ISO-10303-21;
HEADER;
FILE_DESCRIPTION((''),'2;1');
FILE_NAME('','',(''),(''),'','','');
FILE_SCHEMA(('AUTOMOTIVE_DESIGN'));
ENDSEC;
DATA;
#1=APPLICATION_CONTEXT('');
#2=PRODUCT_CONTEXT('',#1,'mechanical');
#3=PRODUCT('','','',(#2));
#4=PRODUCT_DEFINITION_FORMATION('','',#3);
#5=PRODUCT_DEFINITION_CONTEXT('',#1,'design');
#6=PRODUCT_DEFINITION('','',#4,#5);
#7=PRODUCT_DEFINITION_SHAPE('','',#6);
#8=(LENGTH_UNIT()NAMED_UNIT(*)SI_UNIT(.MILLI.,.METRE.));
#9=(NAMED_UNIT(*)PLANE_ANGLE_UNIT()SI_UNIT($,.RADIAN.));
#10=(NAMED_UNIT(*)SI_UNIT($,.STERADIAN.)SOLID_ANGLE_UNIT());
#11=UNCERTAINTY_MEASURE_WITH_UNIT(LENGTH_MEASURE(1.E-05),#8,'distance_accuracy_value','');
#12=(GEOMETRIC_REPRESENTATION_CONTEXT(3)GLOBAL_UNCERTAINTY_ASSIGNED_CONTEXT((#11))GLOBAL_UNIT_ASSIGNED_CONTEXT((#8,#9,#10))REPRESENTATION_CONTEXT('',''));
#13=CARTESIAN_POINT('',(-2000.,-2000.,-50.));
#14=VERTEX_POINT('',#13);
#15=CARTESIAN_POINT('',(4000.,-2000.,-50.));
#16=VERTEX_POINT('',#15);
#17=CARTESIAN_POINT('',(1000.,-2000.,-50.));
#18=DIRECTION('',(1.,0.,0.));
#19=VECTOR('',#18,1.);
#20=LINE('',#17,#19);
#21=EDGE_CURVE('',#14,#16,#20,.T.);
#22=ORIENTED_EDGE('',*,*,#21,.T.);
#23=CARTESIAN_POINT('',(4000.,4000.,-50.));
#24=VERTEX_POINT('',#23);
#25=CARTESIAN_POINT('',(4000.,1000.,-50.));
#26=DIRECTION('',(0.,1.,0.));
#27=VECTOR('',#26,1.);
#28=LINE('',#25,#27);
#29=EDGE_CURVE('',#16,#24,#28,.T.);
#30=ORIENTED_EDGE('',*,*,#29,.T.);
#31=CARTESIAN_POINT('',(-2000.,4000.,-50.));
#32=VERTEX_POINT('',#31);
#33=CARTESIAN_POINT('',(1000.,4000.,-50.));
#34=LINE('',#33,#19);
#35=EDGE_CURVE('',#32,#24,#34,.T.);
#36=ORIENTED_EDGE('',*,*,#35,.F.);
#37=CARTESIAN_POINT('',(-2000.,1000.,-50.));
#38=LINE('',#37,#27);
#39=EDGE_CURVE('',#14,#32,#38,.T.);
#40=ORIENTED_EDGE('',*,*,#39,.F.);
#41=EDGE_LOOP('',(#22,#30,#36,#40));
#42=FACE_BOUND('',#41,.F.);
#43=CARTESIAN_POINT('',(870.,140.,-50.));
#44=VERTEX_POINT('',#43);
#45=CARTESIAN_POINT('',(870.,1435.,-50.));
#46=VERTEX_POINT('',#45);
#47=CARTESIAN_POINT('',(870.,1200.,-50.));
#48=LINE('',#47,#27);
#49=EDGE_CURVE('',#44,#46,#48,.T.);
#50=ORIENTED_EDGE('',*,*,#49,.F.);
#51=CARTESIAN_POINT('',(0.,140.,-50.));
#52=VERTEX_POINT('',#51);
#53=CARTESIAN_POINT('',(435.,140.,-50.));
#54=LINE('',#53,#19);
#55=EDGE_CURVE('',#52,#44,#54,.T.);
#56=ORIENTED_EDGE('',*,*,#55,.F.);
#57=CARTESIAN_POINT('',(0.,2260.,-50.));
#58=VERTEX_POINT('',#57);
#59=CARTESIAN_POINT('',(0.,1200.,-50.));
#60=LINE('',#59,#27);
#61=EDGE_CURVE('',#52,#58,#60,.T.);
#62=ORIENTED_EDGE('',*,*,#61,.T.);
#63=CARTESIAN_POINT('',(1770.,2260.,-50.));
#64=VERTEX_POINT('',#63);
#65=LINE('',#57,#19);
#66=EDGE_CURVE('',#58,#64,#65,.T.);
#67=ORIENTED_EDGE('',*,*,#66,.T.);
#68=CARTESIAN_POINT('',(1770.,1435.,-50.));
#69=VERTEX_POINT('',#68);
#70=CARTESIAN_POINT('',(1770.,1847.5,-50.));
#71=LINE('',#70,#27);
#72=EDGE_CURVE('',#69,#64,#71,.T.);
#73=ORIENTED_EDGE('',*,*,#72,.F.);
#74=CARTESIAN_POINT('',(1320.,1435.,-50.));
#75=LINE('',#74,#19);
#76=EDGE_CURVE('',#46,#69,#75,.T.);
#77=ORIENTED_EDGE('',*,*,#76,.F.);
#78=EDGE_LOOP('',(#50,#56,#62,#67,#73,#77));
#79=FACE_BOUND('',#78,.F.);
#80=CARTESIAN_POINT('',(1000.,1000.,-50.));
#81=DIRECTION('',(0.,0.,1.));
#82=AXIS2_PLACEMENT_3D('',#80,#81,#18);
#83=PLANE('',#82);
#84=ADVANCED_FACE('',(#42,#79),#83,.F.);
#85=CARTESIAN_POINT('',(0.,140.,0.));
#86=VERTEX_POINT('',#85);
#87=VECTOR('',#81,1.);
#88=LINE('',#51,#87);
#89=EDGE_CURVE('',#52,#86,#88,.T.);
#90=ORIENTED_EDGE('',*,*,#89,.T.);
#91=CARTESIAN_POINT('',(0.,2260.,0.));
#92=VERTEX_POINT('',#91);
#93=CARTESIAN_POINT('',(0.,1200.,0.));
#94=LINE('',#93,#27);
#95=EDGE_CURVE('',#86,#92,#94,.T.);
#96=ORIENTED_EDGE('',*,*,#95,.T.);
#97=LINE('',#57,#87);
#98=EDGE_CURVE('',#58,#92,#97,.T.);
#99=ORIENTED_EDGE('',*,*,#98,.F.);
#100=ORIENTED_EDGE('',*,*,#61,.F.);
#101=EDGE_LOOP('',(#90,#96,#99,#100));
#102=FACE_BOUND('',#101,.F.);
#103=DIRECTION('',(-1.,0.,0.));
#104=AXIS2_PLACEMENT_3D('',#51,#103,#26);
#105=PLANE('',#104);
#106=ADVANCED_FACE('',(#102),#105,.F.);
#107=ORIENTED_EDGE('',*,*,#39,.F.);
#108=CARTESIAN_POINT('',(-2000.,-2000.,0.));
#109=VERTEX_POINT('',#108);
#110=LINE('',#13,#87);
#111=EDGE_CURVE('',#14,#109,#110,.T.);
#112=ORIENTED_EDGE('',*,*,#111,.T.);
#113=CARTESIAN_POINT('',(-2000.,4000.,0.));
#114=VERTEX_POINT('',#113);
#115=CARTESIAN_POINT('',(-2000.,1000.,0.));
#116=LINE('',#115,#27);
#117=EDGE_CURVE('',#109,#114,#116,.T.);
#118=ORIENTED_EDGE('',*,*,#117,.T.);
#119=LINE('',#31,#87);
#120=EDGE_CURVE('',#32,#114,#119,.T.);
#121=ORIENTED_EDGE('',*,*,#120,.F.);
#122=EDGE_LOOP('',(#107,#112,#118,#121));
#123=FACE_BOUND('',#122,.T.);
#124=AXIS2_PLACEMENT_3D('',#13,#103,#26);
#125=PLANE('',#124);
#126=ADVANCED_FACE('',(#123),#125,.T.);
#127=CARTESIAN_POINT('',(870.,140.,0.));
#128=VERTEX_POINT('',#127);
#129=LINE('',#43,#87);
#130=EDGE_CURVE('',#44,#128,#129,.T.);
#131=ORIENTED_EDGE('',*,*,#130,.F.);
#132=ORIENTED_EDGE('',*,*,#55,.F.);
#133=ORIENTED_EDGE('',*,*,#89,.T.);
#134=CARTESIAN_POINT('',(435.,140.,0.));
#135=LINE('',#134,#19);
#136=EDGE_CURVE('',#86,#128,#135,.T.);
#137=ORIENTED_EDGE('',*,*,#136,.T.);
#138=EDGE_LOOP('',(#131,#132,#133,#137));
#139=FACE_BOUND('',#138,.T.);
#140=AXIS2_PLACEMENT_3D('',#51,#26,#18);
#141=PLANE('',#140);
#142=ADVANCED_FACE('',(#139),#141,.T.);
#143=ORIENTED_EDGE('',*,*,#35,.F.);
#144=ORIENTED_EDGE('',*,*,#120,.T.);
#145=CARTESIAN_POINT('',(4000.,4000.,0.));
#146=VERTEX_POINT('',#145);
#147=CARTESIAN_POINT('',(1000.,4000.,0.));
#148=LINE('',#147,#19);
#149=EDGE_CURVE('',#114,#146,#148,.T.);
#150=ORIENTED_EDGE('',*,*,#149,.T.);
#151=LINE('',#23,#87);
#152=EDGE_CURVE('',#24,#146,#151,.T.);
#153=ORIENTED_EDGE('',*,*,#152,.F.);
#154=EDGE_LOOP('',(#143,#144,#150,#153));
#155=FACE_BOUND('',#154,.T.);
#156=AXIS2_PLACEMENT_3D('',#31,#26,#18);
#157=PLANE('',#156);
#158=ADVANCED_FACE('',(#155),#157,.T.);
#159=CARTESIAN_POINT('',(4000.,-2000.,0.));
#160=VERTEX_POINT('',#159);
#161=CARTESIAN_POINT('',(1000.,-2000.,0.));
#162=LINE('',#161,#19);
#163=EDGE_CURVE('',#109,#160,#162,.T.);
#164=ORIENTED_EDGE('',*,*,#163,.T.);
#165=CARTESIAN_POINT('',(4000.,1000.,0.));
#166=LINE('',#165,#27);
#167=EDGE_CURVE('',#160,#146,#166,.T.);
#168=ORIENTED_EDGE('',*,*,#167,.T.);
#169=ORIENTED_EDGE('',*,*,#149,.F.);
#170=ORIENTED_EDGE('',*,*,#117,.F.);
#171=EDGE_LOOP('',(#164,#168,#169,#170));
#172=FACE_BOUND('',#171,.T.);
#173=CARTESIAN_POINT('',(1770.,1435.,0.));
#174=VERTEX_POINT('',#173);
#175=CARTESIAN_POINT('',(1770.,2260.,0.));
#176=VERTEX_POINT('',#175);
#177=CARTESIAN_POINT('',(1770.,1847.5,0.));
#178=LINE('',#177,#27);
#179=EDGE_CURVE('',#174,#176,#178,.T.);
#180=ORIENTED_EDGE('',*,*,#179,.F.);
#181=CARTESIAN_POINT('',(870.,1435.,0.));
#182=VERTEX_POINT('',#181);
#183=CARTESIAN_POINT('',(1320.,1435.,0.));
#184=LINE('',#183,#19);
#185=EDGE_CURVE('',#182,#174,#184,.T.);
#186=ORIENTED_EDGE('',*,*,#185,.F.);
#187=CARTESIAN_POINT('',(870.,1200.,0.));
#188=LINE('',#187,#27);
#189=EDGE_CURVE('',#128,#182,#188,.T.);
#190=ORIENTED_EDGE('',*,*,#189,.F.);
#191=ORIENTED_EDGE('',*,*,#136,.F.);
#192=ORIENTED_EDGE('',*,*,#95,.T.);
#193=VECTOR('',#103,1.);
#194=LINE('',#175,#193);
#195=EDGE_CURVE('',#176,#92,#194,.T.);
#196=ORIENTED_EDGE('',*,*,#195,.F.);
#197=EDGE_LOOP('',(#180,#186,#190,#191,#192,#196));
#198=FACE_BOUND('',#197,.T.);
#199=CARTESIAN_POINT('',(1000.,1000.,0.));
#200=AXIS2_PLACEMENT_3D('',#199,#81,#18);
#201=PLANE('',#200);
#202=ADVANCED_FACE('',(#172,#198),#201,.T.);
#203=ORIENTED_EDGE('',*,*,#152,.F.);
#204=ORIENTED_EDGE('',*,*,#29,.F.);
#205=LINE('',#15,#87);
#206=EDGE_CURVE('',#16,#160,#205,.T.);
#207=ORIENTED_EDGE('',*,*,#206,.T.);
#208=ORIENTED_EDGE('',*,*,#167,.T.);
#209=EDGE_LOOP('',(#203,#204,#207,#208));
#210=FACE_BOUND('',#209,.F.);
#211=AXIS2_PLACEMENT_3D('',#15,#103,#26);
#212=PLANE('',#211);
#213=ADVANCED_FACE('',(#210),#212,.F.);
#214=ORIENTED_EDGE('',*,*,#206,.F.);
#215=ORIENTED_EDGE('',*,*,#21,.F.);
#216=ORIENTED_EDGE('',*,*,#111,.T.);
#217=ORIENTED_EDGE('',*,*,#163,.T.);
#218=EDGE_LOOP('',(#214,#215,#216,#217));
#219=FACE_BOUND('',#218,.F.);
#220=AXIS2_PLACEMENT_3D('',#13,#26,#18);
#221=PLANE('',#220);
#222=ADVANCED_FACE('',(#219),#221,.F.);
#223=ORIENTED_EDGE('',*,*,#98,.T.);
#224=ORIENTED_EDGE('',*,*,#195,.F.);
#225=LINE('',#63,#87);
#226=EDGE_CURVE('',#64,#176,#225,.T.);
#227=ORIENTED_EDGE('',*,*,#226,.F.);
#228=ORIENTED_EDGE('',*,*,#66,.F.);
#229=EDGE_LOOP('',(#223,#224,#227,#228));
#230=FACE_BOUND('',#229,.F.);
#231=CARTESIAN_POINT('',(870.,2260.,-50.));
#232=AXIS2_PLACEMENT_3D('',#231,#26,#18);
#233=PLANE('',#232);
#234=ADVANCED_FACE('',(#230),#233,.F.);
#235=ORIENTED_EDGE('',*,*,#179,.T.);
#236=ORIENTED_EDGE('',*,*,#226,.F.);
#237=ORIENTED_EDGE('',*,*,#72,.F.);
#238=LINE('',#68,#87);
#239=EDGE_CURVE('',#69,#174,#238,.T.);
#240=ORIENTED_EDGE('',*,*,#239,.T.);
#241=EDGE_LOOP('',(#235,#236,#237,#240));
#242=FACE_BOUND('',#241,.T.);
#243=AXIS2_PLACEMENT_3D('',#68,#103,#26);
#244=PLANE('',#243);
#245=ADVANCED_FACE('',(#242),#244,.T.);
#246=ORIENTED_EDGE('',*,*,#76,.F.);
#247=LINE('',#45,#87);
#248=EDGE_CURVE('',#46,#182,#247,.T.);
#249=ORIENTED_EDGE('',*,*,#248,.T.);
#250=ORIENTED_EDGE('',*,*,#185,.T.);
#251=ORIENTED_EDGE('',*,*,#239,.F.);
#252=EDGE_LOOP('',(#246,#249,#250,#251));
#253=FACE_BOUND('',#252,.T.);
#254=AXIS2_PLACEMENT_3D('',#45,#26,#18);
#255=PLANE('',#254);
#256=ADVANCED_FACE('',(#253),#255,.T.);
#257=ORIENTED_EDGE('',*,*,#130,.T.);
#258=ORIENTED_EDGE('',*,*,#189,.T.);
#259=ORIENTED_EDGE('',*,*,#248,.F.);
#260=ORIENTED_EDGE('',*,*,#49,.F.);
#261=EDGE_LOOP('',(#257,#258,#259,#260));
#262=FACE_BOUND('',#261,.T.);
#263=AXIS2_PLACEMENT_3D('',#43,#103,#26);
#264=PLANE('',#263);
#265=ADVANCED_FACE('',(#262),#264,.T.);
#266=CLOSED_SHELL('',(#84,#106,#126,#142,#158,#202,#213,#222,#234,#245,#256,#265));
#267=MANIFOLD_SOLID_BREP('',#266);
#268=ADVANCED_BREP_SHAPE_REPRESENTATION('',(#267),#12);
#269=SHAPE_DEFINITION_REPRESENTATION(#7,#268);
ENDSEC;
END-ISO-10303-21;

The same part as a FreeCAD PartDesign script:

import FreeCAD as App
import Part
import Sketcher

V = App.Vector


def add_polygon(sketch, points):
    """Adds a closed chain of lines whose ends are joined by coincident constraints."""
    first, n = sketch.GeometryCount, len(points)
    for a, b in zip(points, points[1:] + points[:1]):
        sketch.addGeometry(Part.LineSegment(App.Vector(*a, 0), App.Vector(*b, 0)), False)
    for i in range(n):
        sketch.addConstraint(Sketcher.Constraint("Coincident", first + i, 2, first + (i + 1) % n, 1))

doc = App.newDocument("Part")
body = doc.addObject("PartDesign::Body", "Body")

sketch1 = body.newObject("Sketcher::SketchObject", "Sketch")
sketch1.AttachmentSupport = (doc.getObject("XY_Plane"), [""])
sketch1.MapMode = "FlatFace"
sketch1.AttachmentOffset = App.Placement(V(0, 0, -50), App.Rotation())
add_polygon(sketch1, [(870, 2120), (870, 1295), (1770, 1295), (1770, 2120)])
sketch1.addConstraint(Sketcher.Constraint("Vertical", 0))
sketch1.addConstraint(Sketcher.Constraint("Horizontal", 1))
sketch1.addConstraint(Sketcher.Constraint("Vertical", 2))
sketch1.addConstraint(Sketcher.Constraint("Horizontal", 3))
sketch1.addConstraint(Sketcher.Constraint("DistanceX", 1, 1, 1, 2, 900.0))
sketch1.addConstraint(Sketcher.Constraint("DistanceY", 0, 2, 0, 1, 825.0))
sketch1.addConstraint(Sketcher.Constraint("DistanceX", -1, 1, 0, 2, 870.0))
sketch1.addConstraint(Sketcher.Constraint("DistanceY", -1, 1, 0, 2, 1295.0))
pad1 = body.newObject("PartDesign::Pad", "Pad")
pad1.Profile = sketch1
pad1.Length = 50
body2 = doc.addObject("PartDesign::Body", "Body001")

sketch2 = body2.newObject("Sketcher::SketchObject", "Sketch001")
sketch2.AttachmentSupport = (doc.getObject("XY_Plane001"), [""])
sketch2.MapMode = "FlatFace"
sketch2.AttachmentOffset = App.Placement(V(0, 0, -50), App.Rotation())
add_polygon(sketch2, [(0, 2120), (0, 0), (870, 0), (870, 2120)])
sketch2.addConstraint(Sketcher.Constraint("Vertical", 0))
sketch2.addConstraint(Sketcher.Constraint("Horizontal", 1))
sketch2.addConstraint(Sketcher.Constraint("Vertical", 2))
sketch2.addConstraint(Sketcher.Constraint("Horizontal", 3))
sketch2.addConstraint(Sketcher.Constraint("Coincident", 0, 2, -1, 1))
sketch2.addConstraint(Sketcher.Constraint("DistanceX", 1, 1, 1, 2, 870.0))
sketch2.addConstraint(Sketcher.Constraint("DistanceY", 0, 2, 0, 1, 2120.0))
pad2 = body2.newObject("PartDesign::Pad", "Pad001")
pad2.Profile = sketch2
pad2.Length = 50
doc.recompute()

boolean = body2.newObject("PartDesign::Boolean", "Boolean")
boolean.Type = "Fuse"
boolean.addObjects([body])
body3 = doc.addObject("PartDesign::Body", "Body002")
doc.recompute()

body2.Placement = App.Placement(V(0, 140, 0), App.Rotation(V(0, 0, 1), 0))
boolean2 = body3.newObject("PartDesign::Boolean", "Boolean001")
boolean2.Type = "Fuse"
boolean2.addObjects([body2])
body4 = doc.addObject("PartDesign::Body", "Body003")

sketch3 = body4.newObject("Sketcher::SketchObject", "Sketch002")
sketch3.AttachmentSupport = (doc.getObject("XY_Plane003"), [""])
sketch3.MapMode = "FlatFace"
sketch3.AttachmentOffset = App.Placement(V(0, 0, -50), App.Rotation())
add_polygon(sketch3, [(-2000, 4000), (-2000, -2000), (4000, -2000), (4000, 4000)])
sketch3.addConstraint(Sketcher.Constraint("Vertical", 0))
sketch3.addConstraint(Sketcher.Constraint("Horizontal", 1))
sketch3.addConstraint(Sketcher.Constraint("Vertical", 2))
sketch3.addConstraint(Sketcher.Constraint("Horizontal", 3))
sketch3.addConstraint(Sketcher.Constraint("Equal", 3, 0))
sketch3.addConstraint(Sketcher.Constraint("DistanceX", 1, 1, 1, 2, 6000.0))
sketch3.addConstraint(Sketcher.Constraint("DistanceX", 0, 2, -1, 1, 2000.0))
sketch3.addConstraint(Sketcher.Constraint("DistanceY", 0, 2, -1, 1, 2000.0))
pad3 = body4.newObject("PartDesign::Pad", "Pad002")
pad3.Profile = sketch3
pad3.Length = 50
doc.recompute()

boolean3 = body4.newObject("PartDesign::Boolean", "Boolean002")
boolean3.Type = "Cut"
boolean3.addObjects([body3])

doc.recompute()
